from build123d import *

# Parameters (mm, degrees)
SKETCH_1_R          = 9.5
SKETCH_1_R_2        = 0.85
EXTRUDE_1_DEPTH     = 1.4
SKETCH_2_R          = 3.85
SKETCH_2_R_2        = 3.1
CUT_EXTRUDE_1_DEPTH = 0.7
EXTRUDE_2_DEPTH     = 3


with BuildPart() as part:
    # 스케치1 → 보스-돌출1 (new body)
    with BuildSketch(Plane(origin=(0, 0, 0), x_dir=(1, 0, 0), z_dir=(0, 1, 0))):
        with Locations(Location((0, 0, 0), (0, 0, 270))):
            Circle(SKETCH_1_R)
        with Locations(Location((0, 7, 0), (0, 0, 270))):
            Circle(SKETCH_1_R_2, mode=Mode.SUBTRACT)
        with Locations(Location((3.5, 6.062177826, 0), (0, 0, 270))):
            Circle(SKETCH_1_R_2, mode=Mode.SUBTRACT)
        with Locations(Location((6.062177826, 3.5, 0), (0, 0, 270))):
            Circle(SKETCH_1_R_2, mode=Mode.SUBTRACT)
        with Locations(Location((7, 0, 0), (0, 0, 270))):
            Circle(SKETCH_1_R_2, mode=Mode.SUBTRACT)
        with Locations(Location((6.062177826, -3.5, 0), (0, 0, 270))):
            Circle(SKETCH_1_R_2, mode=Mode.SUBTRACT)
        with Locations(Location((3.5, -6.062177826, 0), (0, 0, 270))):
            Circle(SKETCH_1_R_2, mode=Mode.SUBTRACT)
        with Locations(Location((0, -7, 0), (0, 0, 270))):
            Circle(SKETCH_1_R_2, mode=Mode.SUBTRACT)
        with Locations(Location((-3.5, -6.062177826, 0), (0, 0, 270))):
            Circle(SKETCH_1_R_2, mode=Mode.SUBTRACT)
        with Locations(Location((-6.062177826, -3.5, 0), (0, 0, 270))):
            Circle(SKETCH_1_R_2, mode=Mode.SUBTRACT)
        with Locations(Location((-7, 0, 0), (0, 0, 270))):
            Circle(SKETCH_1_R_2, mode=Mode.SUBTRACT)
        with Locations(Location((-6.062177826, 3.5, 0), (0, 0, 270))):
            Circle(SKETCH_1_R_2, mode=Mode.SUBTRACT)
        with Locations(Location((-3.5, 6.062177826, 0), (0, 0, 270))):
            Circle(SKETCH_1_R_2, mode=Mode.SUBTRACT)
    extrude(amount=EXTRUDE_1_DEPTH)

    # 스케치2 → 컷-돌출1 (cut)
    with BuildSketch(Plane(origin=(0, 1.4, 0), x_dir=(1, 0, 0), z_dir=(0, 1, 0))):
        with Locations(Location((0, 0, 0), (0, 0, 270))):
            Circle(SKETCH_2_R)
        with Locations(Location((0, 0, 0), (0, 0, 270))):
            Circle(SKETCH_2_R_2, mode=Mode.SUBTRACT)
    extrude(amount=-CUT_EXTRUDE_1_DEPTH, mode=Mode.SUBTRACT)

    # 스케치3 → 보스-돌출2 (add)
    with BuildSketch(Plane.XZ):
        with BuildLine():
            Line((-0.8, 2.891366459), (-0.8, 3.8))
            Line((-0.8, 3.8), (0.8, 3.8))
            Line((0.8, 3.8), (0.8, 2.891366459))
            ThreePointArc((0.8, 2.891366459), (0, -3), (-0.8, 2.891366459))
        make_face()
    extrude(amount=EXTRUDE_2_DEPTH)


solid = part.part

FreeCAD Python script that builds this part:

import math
import FreeCAD as App
import Part
import Sketcher
from FreeCAD import Vector

doc = App.newDocument("Part")
body = doc.addObject("PartDesign::Body", "Body")

# Sketch on XZ plane
sketch1 = body.newObject("Sketcher::SketchObject", "Sketch")
sketch1.AttachmentSupport = (doc.getObject("XZ_Plane"), [""])
sketch1.MapMode = "FlatFace"
sketch1.addGeometry([
    Part.Circle(Vector(0, 0, 0), Vector(0, 0, 1), 9.5),  # 0
    Part.Circle(Vector(-6.062178, -3.5, 0), Vector(0, 0, 1), 0.85),  # 1
    Part.Circle(Vector(-3.5, -6.062178, 0), Vector(0, 0, 1), 0.85),  # 2
    Part.Circle(Vector(0, -7, 0), Vector(0, 0, 1), 0.85),  # 3
    Part.Circle(Vector(-7, 0, 0), Vector(0, 0, 1), 0.85),  # 4
    Part.Circle(Vector(-6.062178, 3.5, 0), Vector(0, 0, 1), 0.85),  # 5
    Part.Circle(Vector(-3.5, 6.062178, 0), Vector(0, 0, 1), 0.85),  # 6
    Part.Circle(Vector(3.5, -6.062178, 0), Vector(0, 0, 1), 0.85),  # 7
    Part.Circle(Vector(6.062178, -3.5, 0), Vector(0, 0, 1), 0.85),  # 8
    Part.Circle(Vector(7, 0, 0), Vector(0, 0, 1), 0.85),  # 9
    Part.Circle(Vector(0, 7, 0), Vector(0, 0, 1), 0.85),  # 10
    Part.Circle(Vector(3.5, 6.062178, 0), Vector(0, 0, 1), 0.85),  # 11
    Part.Circle(Vector(6.062178, 3.5, 0), Vector(0, 0, 1), 0.85),  # 12
], False)
sketch1.addConstraint([
    Sketcher.Constraint("Coincident", 0, 3, -1, 1),
    Sketcher.Constraint("Equal", 1, 2),
    Sketcher.Constraint("Equal", 2, 3),
    Sketcher.Constraint("Equal", 3, 4),
    Sketcher.Constraint("Equal", 4, 5),
    Sketcher.Constraint("Equal", 5, 6),
    Sketcher.Constraint("Equal", 6, 7),
    Sketcher.Constraint("Equal", 7, 8),
    Sketcher.Constraint("Equal", 8, 9),
    Sketcher.Constraint("Equal", 9, 10),
    Sketcher.Constraint("Equal", 10, 11),
    Sketcher.Constraint("Equal", 11, 12),
    Sketcher.Constraint("Symmetric", 6, 3, 7, 3, -1, 1),
    Sketcher.Constraint("Symmetric", 5, 3, 8, 3, -1, 1),
    Sketcher.Constraint("Symmetric", 4, 3, 9, 3, -1, 1),
    Sketcher.Constraint("Symmetric", 3, 3, 10, 3, -1, 1),
    Sketcher.Constraint("Symmetric", 2, 3, 11, 3, -1, 1),
    Sketcher.Constraint("Symmetric", 1, 3, 12, 3, -1, 1),
    Sketcher.Constraint("Symmetric", 2, 3, 7, 3, -2),
    Sketcher.Constraint("Symmetric", 1, 3, 8, 3, -2),
    Sketcher.Constraint("PointOnObject", 3, 3, -2),
    Sketcher.Constraint("PointOnObject", 4, 3, -1),
    Sketcher.Constraint("Diameter", 0, 19.0),
    Sketcher.Constraint("Diameter", 1, 1.7),
    Sketcher.Constraint("DistanceY", 3, 3, -1, 1, 7.0),
    Sketcher.Constraint("DistanceX", 4, 3, -1, 1, 7.0),
    Sketcher.Constraint("DistanceY", 1, 3, 5, 3, 7.0),
    Sketcher.Constraint("DistanceX", 2, 3, 7, 3, 7.0),
    Sketcher.Constraint("DistanceX", 1, 3, -1, 1, 6.062178),
    Sketcher.Constraint("DistanceY", 2, 3, -1, 1, 6.062178),
])
pad1 = body.newObject("PartDesign::Pad", "Pad")
pad1.Profile = sketch1
pad1.Length = 1.4
pad1.Reversed = True

# Sketch on XZ plane
sketch2 = body.newObject("Sketcher::SketchObject", "Sketch001")
sketch2.AttachmentSupport = (doc.getObject("XZ_Plane"), [""])
sketch2.MapMode = "FlatFace"
sketch2.AttachmentOffset = App.Placement(Vector(0, 0, -1.4), App.Rotation())
sketch2.addGeometry([
    Part.Circle(Vector(0, 0, 0), Vector(0, 0, 1), 3.85),
    Part.Circle(Vector(0, 0, 0), Vector(0, 0, 1), 3.1),
], False)
sketch2.addConstraint([
    Sketcher.Constraint("Coincident", 0, 3, -1, 1),
    Sketcher.Constraint("Coincident", 1, 3, -1, 1),
    Sketcher.Constraint("Diameter", 0, 7.7),
    Sketcher.Constraint("Diameter", 1, 6.2),
])
pocket1 = body.newObject("PartDesign::Pocket", "Pocket")
pocket1.Profile = sketch2
pocket1.Length = 0.7
pocket1.Reversed = True

# Sketch on XZ plane
sketch3 = body.newObject("Sketcher::SketchObject", "Sketch002")
sketch3.AttachmentSupport = (doc.getObject("XZ_Plane"), [""])
sketch3.MapMode = "FlatFace"
sketch3.addGeometry([
    Part.LineSegment(Vector(-0.8, 3.8, 0), Vector(-0.8, 2.891366, 0)),
    Part.ArcOfCircle(Part.Circle(Vector(0, 0, 0), Vector(0, 0, 1), 3), math.radians(105.46601), math.radians(434.53399)),
    Part.LineSegment(Vector(0.8, 2.891366, 0), Vector(0.8, 3.8, 0)),
    Part.LineSegment(Vector(0.8, 3.8, 0), Vector(-0.8, 3.8, 0)),
], False)
sketch3.addConstraint([
    Sketcher.Constraint("Coincident", 0, 2, 1, 1),
    Sketcher.Constraint("Coincident", 1, 2, 2, 1),
    Sketcher.Constraint("Coincident", 2, 2, 3, 1),
    Sketcher.Constraint("Coincident", 3, 2, 0, 1),
    Sketcher.Constraint("Vertical", 0),
    Sketcher.Constraint("Vertical", 2),
    Sketcher.Constraint("Horizontal", 3),
    Sketcher.Constraint("Coincident", 1, 3, -1, 1),
    Sketcher.Constraint("Horizontal", 0, 2, 1, 2),
    Sketcher.Constraint("Radius", 1, 3.0),
    Sketcher.Constraint("DistanceX", 3, 2, 3, 1, 1.6),
    Sketcher.Constraint("DistanceY", -1, 1, 2, 2, 3.8),
])
pad2 = body.newObject("PartDesign::Pad", "Pad001")
pad2.Profile = sketch3
pad2.Length = 3

doc.recompute()
